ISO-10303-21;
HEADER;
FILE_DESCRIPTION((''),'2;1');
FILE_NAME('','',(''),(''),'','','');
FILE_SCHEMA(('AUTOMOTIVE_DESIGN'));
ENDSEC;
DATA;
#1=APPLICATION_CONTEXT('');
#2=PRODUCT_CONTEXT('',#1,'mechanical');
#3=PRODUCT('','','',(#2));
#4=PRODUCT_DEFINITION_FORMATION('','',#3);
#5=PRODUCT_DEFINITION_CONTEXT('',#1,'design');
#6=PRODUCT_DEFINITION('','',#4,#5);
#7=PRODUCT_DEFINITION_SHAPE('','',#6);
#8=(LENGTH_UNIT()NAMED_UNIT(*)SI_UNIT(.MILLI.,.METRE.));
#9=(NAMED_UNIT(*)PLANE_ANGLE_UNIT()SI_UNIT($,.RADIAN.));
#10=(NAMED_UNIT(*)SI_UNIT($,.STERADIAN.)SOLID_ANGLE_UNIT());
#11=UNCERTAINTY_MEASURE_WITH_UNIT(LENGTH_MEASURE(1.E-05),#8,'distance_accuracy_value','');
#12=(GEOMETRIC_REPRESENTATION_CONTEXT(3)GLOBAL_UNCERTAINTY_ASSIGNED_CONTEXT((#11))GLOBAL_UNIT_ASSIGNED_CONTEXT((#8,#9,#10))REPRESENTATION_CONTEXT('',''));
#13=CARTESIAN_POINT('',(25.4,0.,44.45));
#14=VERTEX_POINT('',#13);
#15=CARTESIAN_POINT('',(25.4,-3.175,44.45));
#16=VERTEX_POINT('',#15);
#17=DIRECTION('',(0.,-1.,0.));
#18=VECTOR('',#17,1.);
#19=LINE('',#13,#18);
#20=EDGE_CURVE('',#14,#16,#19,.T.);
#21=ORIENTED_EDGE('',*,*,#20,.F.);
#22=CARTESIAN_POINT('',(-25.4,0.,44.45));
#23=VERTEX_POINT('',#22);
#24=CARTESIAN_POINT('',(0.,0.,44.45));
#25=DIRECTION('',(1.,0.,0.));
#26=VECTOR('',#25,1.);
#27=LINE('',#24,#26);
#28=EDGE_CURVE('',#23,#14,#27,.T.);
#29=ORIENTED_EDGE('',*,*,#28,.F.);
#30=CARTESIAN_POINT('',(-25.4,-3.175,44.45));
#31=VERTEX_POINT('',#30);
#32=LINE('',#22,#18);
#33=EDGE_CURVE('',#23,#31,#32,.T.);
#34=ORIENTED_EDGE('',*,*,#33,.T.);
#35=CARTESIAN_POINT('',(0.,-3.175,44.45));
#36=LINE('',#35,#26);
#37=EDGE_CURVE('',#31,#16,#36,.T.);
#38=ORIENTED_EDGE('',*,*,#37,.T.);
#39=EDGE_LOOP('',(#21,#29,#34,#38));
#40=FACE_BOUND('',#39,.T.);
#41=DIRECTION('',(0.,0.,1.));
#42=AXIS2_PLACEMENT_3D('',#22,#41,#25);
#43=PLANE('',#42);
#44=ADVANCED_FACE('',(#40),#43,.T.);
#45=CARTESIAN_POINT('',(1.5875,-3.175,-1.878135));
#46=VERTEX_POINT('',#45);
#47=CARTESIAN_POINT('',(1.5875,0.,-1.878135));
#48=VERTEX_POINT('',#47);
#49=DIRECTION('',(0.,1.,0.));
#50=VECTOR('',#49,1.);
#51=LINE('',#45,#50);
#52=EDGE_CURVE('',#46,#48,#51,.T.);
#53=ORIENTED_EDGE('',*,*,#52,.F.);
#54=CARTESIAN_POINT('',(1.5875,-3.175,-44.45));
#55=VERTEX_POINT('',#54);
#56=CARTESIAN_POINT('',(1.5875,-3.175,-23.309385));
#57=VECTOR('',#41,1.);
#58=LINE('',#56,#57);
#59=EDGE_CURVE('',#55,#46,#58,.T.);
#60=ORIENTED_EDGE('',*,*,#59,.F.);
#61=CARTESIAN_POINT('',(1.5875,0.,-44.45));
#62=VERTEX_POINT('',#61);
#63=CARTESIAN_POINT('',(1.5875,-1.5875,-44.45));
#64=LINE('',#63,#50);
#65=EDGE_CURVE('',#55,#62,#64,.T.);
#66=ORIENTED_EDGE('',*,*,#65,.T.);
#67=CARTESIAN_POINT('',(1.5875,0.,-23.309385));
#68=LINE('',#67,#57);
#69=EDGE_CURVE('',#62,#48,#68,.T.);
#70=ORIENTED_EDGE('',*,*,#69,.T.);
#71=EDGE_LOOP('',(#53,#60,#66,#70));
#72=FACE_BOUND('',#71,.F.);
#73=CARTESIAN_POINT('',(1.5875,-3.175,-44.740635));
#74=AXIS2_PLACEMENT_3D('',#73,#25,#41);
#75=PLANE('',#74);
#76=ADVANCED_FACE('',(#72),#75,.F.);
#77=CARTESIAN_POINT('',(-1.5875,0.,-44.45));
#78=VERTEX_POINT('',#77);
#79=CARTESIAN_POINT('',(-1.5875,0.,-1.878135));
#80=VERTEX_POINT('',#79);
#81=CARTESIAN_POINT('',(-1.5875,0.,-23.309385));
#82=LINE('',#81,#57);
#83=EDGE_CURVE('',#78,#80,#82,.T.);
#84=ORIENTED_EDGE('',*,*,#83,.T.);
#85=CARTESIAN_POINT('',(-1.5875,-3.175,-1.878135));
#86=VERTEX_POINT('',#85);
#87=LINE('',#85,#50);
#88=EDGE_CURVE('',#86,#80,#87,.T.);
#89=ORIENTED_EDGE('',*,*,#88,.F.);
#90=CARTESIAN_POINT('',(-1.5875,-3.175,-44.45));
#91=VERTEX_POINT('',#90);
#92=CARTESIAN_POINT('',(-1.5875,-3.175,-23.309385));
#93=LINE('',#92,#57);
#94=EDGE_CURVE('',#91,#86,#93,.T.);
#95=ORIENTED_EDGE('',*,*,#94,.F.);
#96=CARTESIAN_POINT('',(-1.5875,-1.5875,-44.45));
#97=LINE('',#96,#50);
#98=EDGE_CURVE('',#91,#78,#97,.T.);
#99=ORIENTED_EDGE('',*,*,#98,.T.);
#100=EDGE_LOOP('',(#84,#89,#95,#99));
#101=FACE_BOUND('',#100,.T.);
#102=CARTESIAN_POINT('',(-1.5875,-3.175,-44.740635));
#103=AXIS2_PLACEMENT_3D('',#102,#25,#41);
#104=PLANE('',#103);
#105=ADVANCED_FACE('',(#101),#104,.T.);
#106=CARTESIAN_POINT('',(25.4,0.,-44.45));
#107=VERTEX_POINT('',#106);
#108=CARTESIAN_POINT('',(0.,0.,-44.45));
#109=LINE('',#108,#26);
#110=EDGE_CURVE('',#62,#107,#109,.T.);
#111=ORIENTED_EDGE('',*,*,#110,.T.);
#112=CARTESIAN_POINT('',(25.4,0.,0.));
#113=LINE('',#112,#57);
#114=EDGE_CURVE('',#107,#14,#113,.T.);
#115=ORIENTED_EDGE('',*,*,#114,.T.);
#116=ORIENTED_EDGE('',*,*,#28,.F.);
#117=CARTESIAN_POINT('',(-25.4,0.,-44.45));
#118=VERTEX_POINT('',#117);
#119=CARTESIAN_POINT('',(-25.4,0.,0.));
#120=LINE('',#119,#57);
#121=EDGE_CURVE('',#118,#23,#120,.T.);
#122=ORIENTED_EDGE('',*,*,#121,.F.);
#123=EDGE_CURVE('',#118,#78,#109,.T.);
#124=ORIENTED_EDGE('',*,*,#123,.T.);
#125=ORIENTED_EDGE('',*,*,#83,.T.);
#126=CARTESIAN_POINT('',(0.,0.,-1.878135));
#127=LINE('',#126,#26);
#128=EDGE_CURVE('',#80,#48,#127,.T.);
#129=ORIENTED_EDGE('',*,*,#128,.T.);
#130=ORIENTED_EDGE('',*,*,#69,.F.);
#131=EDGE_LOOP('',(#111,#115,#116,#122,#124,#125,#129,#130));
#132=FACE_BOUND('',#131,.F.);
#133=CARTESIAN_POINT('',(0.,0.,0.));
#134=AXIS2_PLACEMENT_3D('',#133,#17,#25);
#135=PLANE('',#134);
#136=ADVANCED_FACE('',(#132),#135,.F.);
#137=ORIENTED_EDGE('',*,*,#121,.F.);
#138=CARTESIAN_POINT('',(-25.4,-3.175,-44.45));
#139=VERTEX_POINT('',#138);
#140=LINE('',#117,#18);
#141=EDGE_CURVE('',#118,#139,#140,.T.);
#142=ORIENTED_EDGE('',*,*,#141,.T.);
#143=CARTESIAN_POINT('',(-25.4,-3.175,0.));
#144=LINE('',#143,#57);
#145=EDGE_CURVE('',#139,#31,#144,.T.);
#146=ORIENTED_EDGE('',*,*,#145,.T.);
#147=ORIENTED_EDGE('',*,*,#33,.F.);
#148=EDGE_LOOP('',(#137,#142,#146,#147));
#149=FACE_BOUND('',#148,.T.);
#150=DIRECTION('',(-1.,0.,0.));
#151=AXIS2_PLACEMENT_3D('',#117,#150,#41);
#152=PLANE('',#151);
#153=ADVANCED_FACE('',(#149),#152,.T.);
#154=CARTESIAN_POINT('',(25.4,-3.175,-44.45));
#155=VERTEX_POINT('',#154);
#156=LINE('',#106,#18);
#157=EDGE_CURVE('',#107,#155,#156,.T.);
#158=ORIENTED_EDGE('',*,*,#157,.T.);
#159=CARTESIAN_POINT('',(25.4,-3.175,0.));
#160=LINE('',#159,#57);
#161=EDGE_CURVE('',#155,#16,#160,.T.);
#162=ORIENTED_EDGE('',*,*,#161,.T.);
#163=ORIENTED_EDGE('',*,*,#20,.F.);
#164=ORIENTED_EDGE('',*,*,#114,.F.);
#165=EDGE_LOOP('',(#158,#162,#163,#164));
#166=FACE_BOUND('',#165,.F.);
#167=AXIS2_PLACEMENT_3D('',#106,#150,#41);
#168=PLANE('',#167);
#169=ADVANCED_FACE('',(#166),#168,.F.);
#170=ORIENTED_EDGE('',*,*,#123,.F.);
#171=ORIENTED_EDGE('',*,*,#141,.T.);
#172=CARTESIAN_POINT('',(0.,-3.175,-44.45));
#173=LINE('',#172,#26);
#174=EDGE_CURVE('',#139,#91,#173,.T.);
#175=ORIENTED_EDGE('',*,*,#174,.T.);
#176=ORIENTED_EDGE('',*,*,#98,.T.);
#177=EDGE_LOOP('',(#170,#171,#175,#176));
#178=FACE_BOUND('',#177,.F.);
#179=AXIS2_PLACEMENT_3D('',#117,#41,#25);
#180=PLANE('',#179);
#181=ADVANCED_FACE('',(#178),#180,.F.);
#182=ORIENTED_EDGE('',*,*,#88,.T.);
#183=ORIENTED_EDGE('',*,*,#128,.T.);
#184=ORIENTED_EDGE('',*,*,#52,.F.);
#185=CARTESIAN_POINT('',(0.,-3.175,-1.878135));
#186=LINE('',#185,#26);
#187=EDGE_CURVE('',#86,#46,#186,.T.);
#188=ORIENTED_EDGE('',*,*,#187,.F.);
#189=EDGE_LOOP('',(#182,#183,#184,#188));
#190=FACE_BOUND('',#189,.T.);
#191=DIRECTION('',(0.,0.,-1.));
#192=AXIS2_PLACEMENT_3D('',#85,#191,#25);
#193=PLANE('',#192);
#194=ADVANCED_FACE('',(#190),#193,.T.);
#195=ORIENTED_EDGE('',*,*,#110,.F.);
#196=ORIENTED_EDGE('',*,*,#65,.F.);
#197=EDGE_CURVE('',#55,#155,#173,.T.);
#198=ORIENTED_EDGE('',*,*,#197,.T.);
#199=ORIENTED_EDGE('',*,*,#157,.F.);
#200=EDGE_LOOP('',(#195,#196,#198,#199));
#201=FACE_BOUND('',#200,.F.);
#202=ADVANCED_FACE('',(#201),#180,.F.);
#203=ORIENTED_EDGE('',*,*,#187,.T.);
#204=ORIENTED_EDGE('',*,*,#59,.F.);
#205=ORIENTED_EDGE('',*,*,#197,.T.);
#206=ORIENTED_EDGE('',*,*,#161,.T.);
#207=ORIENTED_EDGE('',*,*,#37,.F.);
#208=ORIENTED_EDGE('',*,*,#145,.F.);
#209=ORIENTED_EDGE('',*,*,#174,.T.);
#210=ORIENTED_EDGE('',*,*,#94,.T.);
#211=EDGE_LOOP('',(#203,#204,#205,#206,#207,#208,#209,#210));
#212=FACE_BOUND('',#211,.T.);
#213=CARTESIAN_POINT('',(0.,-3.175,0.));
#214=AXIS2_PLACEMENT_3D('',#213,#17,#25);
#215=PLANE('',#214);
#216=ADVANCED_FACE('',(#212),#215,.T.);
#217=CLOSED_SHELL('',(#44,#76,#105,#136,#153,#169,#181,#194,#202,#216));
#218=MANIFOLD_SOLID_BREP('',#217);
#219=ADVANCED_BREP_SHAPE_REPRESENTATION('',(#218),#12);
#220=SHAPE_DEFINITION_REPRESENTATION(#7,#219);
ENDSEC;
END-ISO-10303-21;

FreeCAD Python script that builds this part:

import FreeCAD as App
import Part
import Sketcher
Q = App.Units.Quantity

doc = App.newDocument("Part")
body = doc.addObject("PartDesign::Body", "Body")

# Sketch on XZ plane
sketch1 = doc.addObject("Sketcher::SketchObject", "Sketch")
body.addObject(sketch1)
sketch1.AttachmentSupport = (doc.XZ_Plane, [""])
sketch1.MapMode = "FlatFace"
sketch1.addGeometry(Part.LineSegment(App.Vector(-25.4, 44.45, 0), App.Vector(-25.4, -44.45, 0)), False)
sketch1.addGeometry(Part.LineSegment(App.Vector(-25.4, -44.45, 0), App.Vector(25.4, -44.45, 0)), False)
sketch1.addGeometry(Part.LineSegment(App.Vector(25.4, -44.45, 0), App.Vector(25.4, 44.45, 0)), False)
sketch1.addGeometry(Part.LineSegment(App.Vector(25.4, 44.45, 0), App.Vector(-25.4, 44.45, 0)), False)
sketch1.addConstraint(Sketcher.Constraint("Coincident", 0, 2, 1, 1))
sketch1.addConstraint(Sketcher.Constraint("Coincident", 1, 2, 2, 1))
sketch1.addConstraint(Sketcher.Constraint("Coincident", 2, 2, 3, 1))
sketch1.addConstraint(Sketcher.Constraint("Coincident", 3, 2, 0, 1))
sketch1.addConstraint(Sketcher.Constraint("Vertical", 0))
sketch1.addConstraint(Sketcher.Constraint("Horizontal", 1))
sketch1.addConstraint(Sketcher.Constraint("Vertical", 2))
sketch1.addConstraint(Sketcher.Constraint("Horizontal", 3))
sketch1.addConstraint(Sketcher.Constraint("Symmetric", 0, 2, 2, 2, -1, 1))
sketch1.addConstraint(Sketcher.Constraint("DistanceX", 1, 1, 1, 2, Q("2 in")))
sketch1.addConstraint(Sketcher.Constraint("DistanceY", 0, 2, 0, 1, Q("3.5 in")))
pad1 = doc.addObject("PartDesign::Pad", "Pad")
body.addObject(pad1)
pad1.Profile = sketch1
pad1.Length = Q("0.125 in")

# Sketch on XZ plane
sketch2 = doc.addObject("Sketcher::SketchObject", "Sketch001")
body.addObject(sketch2)
sketch2.AttachmentSupport = (doc.XZ_Plane, [""])
sketch2.MapMode = "FlatFace"
sketch2.AttachmentOffset = App.Placement(App.Vector(0, 0, 0.125 * 25.4), App.Rotation())
sketch2.addGeometry(Part.LineSegment(App.Vector(-1.5875, -1.878135, 0), App.Vector(-1.5875, -44.740635, 0)), False)
sketch2.addGeometry(Part.LineSegment(App.Vector(-1.5875, -44.740635, 0), App.Vector(1.5875, -44.740635, 0)), False)
sketch2.addGeometry(Part.LineSegment(App.Vector(1.5875, -44.740635, 0), App.Vector(1.5875, -1.878135, 0)), False)
sketch2.addGeometry(Part.LineSegment(App.Vector(1.5875, -1.878135, 0), App.Vector(-1.5875, -1.878135, 0)), False)
sketch2.addConstraint(Sketcher.Constraint("Coincident", 0, 2, 1, 1))
sketch2.addConstraint(Sketcher.Constraint("Coincident", 1, 2, 2, 1))
sketch2.addConstraint(Sketcher.Constraint("Coincident", 2, 2, 3, 1))
sketch2.addConstraint(Sketcher.Constraint("Coincident", 3, 2, 0, 1))
sketch2.addConstraint(Sketcher.Constraint("Vertical", 0))
sketch2.addConstraint(Sketcher.Constraint("Horizontal", 1))
sketch2.addConstraint(Sketcher.Constraint("Vertical", 2))
sketch2.addConstraint(Sketcher.Constraint("Horizontal", 3))
sketch2.addConstraint(Sketcher.Constraint("DistanceX", 1, 1, 1, 2, Q("0.125 in")))
sketch2.addConstraint(Sketcher.Constraint("DistanceY", 0, 2, 0, 1, Q("1.6875 in")))
sketch2.addConstraint(Sketcher.Constraint("DistanceX", 0, 2, -1, 1, Q("0.0625 in")))
sketch2.addConstraint(Sketcher.Constraint("DistanceY", 0, 2, -1, 1, 44.740635))
pocket1 = doc.addObject("PartDesign::Pocket", "Pocket")
body.addObject(pocket1)
pocket1.Profile = sketch2
pocket1.Length = Q("0.125 in")

# Sketch on XZ plane
sketch3 = doc.addObject("Sketcher::SketchObject", "Sketch002")
body.addObject(sketch3)
sketch3.AttachmentSupport = (doc.XZ_Plane, [""])
sketch3.MapMode = "FlatFace"
sketch3.AttachmentOffset = App.Placement(App.Vector(0, 0, 0.125 * 25.4), App.Rotation())
sketch3.addGeometry(Part.LineSegment(App.Vector(-1.5875, -1.878135, 0), App.Vector(-1.5875, -44.740635, 0)), False)
sketch3.addGeometry(Part.LineSegment(App.Vector(-1.5875, -44.740635, 0), App.Vector(1.5875, -44.740635, 0)), False)
sketch3.addGeometry(Part.LineSegment(App.Vector(1.5875, -44.740635, 0), App.Vector(1.5875, -1.878135, 0)), False)
sketch3.addGeometry(Part.LineSegment(App.Vector(1.5875, -1.878135, 0), App.Vector(-1.5875, -1.878135, 0)), False)
sketch3.addConstraint(Sketcher.Constraint("Coincident", 0, 2, 1, 1))
sketch3.addConstraint(Sketcher.Constraint("Coincident", 1, 2, 2, 1))
sketch3.addConstraint(Sketcher.Constraint("Coincident", 2, 2, 3, 1))
sketch3.addConstraint(Sketcher.Constraint("Coincident", 3, 2, 0, 1))
sketch3.addConstraint(Sketcher.Constraint("Vertical", 0))
sketch3.addConstraint(Sketcher.Constraint("Horizontal", 1))
sketch3.addConstraint(Sketcher.Constraint("Vertical", 2))
sketch3.addConstraint(Sketcher.Constraint("Horizontal", 3))
sketch3.addConstraint(Sketcher.Constraint("DistanceX", 1, 1, 1, 2, Q("0.125 in")))
sketch3.addConstraint(Sketcher.Constraint("DistanceY", 0, 2, 0, 1, Q("1.6875 in")))
sketch3.addConstraint(Sketcher.Constraint("DistanceX", 0, 2, -1, 1, Q("0.0625 in")))
sketch3.addConstraint(Sketcher.Constraint("DistanceY", 0, 2, -1, 1, 44.740635))
pocket2 = doc.addObject("PartDesign::Pocket", "Pocket001")
body.addObject(pocket2)
pocket2.Profile = sketch3
pocket2.Length = Q("0.125 in")

doc.recompute()
